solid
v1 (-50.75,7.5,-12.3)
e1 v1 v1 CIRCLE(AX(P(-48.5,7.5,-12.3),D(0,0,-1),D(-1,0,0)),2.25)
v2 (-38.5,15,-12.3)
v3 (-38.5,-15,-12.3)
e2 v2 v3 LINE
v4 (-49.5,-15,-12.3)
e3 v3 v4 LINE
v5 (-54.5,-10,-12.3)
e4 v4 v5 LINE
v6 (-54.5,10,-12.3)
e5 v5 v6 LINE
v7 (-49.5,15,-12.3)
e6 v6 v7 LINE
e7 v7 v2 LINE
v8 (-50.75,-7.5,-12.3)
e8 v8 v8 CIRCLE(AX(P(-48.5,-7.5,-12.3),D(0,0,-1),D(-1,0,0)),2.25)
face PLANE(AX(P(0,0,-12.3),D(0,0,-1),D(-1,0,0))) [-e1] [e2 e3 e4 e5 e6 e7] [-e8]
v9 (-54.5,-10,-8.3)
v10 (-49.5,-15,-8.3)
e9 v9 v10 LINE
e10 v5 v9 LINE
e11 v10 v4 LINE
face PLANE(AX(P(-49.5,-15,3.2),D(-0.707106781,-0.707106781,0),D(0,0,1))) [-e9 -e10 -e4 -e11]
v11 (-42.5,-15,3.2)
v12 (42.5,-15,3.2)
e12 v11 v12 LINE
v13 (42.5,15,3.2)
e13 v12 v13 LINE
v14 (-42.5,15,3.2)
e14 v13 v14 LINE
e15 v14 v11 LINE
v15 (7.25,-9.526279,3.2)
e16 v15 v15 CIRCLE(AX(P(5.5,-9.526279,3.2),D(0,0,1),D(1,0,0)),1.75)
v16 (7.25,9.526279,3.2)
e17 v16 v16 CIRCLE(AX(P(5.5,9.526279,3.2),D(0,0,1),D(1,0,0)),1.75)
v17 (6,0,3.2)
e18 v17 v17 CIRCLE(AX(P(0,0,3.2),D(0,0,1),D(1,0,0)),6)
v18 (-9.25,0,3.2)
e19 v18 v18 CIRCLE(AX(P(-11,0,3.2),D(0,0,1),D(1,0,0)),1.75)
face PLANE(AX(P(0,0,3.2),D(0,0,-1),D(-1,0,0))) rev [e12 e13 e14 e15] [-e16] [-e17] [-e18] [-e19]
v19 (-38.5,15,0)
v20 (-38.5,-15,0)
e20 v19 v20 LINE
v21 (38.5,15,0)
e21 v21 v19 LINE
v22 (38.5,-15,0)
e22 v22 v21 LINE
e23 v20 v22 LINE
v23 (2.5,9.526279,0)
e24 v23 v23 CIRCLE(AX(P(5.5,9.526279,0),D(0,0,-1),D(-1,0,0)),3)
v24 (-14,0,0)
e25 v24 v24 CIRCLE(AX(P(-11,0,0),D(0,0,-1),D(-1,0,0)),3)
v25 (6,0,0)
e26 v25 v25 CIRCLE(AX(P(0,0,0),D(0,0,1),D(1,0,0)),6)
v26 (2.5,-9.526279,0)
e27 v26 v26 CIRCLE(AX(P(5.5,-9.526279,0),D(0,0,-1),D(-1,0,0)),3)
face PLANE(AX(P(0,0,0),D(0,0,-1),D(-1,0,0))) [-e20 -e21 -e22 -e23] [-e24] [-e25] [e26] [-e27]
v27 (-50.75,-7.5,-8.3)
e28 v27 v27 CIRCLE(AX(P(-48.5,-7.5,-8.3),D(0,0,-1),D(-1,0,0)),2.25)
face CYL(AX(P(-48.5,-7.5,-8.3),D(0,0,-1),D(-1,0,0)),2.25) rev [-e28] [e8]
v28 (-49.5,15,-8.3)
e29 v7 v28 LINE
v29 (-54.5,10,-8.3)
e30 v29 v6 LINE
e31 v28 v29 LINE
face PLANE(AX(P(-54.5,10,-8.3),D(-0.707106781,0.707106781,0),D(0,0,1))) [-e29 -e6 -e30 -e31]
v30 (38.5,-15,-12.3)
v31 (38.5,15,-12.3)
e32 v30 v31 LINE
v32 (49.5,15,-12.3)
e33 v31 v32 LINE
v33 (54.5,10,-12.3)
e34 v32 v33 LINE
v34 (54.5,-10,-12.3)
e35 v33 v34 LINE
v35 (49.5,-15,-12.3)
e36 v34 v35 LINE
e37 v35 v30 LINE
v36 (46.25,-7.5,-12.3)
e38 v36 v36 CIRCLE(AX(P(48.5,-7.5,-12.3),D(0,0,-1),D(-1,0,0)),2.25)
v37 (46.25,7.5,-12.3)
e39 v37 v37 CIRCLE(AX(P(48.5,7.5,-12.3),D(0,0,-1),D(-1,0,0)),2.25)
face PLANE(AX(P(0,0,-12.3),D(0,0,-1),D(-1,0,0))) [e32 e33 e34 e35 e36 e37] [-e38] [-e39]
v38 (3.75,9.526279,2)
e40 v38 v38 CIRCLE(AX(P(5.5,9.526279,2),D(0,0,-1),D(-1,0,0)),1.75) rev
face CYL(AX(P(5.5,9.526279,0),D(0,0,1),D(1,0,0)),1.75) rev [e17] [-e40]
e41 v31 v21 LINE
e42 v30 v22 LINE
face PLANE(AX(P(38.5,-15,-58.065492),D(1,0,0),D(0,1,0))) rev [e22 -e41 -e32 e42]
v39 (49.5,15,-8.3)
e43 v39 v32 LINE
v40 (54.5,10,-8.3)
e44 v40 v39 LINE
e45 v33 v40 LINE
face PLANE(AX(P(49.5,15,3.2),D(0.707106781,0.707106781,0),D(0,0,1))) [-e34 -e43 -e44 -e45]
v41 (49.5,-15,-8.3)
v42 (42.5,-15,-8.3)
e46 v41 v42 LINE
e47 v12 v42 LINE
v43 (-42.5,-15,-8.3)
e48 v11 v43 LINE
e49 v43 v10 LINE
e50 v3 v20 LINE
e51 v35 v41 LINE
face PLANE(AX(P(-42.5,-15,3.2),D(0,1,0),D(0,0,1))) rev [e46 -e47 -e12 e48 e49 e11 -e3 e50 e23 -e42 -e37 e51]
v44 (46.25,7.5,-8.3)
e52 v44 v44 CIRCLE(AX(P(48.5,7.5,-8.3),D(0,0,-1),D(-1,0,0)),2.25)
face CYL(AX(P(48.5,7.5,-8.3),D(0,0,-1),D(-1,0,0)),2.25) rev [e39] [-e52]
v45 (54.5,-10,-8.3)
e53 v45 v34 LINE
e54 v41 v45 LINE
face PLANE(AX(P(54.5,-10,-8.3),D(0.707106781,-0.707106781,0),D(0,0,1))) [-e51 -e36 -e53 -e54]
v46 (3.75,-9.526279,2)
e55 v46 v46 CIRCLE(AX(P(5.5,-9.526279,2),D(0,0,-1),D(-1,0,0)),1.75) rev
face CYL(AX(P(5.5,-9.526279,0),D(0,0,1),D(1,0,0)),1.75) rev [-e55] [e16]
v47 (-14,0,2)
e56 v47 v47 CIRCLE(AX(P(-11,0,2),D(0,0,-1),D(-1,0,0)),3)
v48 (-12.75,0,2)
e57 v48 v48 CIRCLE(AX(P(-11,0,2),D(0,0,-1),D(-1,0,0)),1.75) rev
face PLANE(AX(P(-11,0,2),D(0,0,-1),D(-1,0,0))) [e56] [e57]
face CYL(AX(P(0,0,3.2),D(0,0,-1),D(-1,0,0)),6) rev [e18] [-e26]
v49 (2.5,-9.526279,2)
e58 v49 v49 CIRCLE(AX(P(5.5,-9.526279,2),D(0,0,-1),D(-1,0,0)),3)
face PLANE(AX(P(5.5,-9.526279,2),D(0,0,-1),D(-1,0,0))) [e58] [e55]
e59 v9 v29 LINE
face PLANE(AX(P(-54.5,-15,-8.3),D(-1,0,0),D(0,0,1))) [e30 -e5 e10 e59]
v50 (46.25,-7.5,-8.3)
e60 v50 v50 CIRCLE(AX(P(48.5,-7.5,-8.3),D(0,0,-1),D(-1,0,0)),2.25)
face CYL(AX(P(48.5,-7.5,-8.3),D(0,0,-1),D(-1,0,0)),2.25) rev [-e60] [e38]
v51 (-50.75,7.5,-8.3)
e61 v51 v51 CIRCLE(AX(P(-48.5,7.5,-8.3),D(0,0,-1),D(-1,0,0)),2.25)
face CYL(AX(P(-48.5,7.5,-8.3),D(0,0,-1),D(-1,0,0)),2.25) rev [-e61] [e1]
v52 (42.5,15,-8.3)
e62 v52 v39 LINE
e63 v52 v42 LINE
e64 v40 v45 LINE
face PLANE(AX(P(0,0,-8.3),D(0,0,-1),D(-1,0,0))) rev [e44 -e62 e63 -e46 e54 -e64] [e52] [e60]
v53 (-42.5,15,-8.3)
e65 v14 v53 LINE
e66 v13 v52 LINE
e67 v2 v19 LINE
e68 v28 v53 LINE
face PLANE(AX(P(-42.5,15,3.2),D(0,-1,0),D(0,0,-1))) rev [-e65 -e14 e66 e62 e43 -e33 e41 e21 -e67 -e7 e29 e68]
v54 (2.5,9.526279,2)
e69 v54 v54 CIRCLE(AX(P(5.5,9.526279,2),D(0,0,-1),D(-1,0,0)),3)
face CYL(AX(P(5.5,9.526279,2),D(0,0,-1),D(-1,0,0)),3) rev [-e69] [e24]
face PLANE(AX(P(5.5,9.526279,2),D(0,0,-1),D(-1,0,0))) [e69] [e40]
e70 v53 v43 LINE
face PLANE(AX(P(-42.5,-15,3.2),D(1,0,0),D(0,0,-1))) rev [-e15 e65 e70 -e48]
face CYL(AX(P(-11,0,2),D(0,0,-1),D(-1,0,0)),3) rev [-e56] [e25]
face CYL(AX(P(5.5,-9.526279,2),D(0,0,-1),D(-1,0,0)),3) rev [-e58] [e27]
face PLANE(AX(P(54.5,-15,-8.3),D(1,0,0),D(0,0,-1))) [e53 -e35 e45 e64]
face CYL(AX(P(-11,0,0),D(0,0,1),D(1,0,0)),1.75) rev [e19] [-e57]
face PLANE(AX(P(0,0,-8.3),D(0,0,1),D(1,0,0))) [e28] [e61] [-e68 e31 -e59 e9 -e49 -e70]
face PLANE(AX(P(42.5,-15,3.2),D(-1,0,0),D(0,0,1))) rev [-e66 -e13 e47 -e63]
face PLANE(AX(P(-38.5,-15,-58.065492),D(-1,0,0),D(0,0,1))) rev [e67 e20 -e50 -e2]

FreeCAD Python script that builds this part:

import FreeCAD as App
import Part
import Sketcher


def edges_at(feature, points):
    """Names of the edges that pass closest to the given points."""
    edges = feature.Shape.Edges
    near = lambda p: min(range(len(edges)), key=lambda i: edges[i].distToShape(Part.Vertex(*p))[0])
    return sorted({f"Edge{near(p) + 1}" for p in points})

doc = App.newDocument("Part")
body = doc.addObject("PartDesign::Body", "Body")

sketch1 = body.newObject("Sketcher::SketchObject", "Sketch")
sketch1.AttachmentSupport = (doc.getObject("XY_Plane"), [""])
sketch1.MapMode = "FlatFace"
sketch1.addGeometry([
    Part.LineSegment(App.Vector(-42, 15, 0), App.Vector(-42, -15, 0)),
    Part.LineSegment(App.Vector(-42, -15, 0), App.Vector(42, -15, 0)),
    Part.LineSegment(App.Vector(42, -15, 0), App.Vector(42, 15, 0)),
    Part.LineSegment(App.Vector(42, 15, 0), App.Vector(-42, 15, 0)),
    Part.Circle(App.Vector(0, 0, 0), App.Vector(0, 0, 1), 6),
], False)
sketch1.addConstraint([
    Sketcher.Constraint("Coincident", 0, 2, 1, 1),
    Sketcher.Constraint("Coincident", 1, 2, 2, 1),
    Sketcher.Constraint("Coincident", 2, 2, 3, 1),
    Sketcher.Constraint("Coincident", 3, 2, 0, 1),
    Sketcher.Constraint("Vertical", 0),
    Sketcher.Constraint("Horizontal", 1),
    Sketcher.Constraint("Vertical", 2),
    Sketcher.Constraint("Horizontal", 3),
    Sketcher.Constraint("Coincident", 4, 3, -1, 1),
    Sketcher.Constraint("Symmetric", 0, 2, 2, 2, -1, 1),
    Sketcher.Constraint("Diameter", 4, 12.0),
    Sketcher.Constraint("DistanceX", 1, 1, 1, 2, 85.0),
    Sketcher.Constraint("DistanceY", 0, 2, 0, 1, 30.0),
])
pad1 = body.newObject("PartDesign::Pad", "Pad")
pad1.Profile = sketch1
pad1.Length = 3.2

sketch2 = body.newObject("Sketcher::SketchObject", "Sketch001")
sketch2.AttachmentSupport = (doc.getObject("XY_Plane"), [""])
sketch2.MapMode = "FlatFace"
sketch2.AttachmentOffset = App.Placement(App.Vector(0, 0, 3.2), App.Rotation())
sketch2.addGeometry([
    Part.Circle(App.Vector(5.5, 9.5, 0), App.Vector(0, 0, 1), 1.8),
    Part.Circle(App.Vector(-11, 0, 0), App.Vector(0, 0, 1), 1.8),
    Part.Circle(App.Vector(5.5, -9.5, 0), App.Vector(0, 0, 1), 1.8),
], False)
sketch2.addConstraint([
    Sketcher.Constraint("Equal", 0, 1),
    Sketcher.Constraint("Equal", 1, 2),
    Sketcher.Constraint("Symmetric", 0, 3, 2, 3, -1),
    Sketcher.Constraint("PointOnObject", 1, 3, -1),
    Sketcher.Constraint("Diameter", 0, 3.5),
    Sketcher.Constraint("DistanceX", 1, 3, -1, 1, 11.0),
    Sketcher.Constraint("DistanceX", -1, 1, 0, 3, 5.5),
    Sketcher.Constraint("DistanceY", -1, 1, 0, 3, 9.526279),
])
pocket1 = body.newObject("PartDesign::Pocket", "Pocket")
pocket1.Profile = sketch2
pocket1.Type = "ThroughAll"

sketch3 = body.newObject("Sketcher::SketchObject", "Sketch002")
sketch3.AttachmentSupport = (doc.getObject("XY_Plane"), [""])
sketch3.MapMode = "FlatFace"
sketch3.addGeometry([
    Part.Circle(App.Vector(5.5, 9.5, 0), App.Vector(0, 0, 1), 3),
    Part.Circle(App.Vector(-11, 0, 0), App.Vector(0, 0, 1), 3),
    Part.Circle(App.Vector(5.5, -9.5, 0), App.Vector(0, 0, 1), 3),
], False)
sketch3.addConstraint([
    Sketcher.Constraint("Equal", 0, 1),
    Sketcher.Constraint("Equal", 1, 2),
    Sketcher.Constraint("Symmetric", 0, 3, 2, 3, -1),
    Sketcher.Constraint("PointOnObject", 1, 3, -1),
    Sketcher.Constraint("Diameter", 0, 6.0),
    Sketcher.Constraint("DistanceX", 1, 3, -1, 1, 11.0),
    Sketcher.Constraint("DistanceX", -1, 1, 0, 3, 5.5),
    Sketcher.Constraint("DistanceY", -1, 1, 0, 3, 9.526279),
])
pocket2 = body.newObject("PartDesign::Pocket", "Pocket001")
pocket2.Profile = sketch3
pocket2.Length = 2
pocket2.Reversed = True

sketch4 = body.newObject("Sketcher::SketchObject", "Sketch003")
sketch4.AttachmentSupport = (doc.getObject("XY_Plane"), [""])
sketch4.MapMode = "FlatFace"
sketch4.addGeometry([
    Part.LineSegment(App.Vector(-38.5, 15, 0), App.Vector(-38.5, -15, 0)),
    Part.LineSegment(App.Vector(-38.5, -15, 0), App.Vector(-42.5, -15, 0)),
    Part.LineSegment(App.Vector(-42.5, -15, 0), App.Vector(-42.5, 15, 0)),
    Part.LineSegment(App.Vector(-42.5, 15, 0), App.Vector(-38.5, 15, 0)),
    Part.LineSegment(App.Vector(42.5, 15, 0), App.Vector(42.5, -15, 0)),
    Part.LineSegment(App.Vector(42.5, -15, 0), App.Vector(38.5, -15, 0)),
    Part.LineSegment(App.Vector(38.5, -15, 0), App.Vector(38.5, 15, 0)),
    Part.LineSegment(App.Vector(38.5, 15, 0), App.Vector(42.5, 15, 0)),
], False)
sketch4.addConstraint([
    Sketcher.Constraint("Coincident", 0, 2, 1, 1),
    Sketcher.Constraint("Coincident", 1, 2, 2, 1),
    Sketcher.Constraint("Coincident", 2, 2, 3, 1),
    Sketcher.Constraint("Coincident", 3, 2, 0, 1),
    Sketcher.Constraint("Coincident", 4, 2, 5, 1),
    Sketcher.Constraint("Coincident", 5, 2, 6, 1),
    Sketcher.Constraint("Coincident", 6, 2, 7, 1),
    Sketcher.Constraint("Coincident", 7, 2, 4, 1),
    Sketcher.Constraint("Vertical", 0),
    Sketcher.Constraint("Horizontal", 1),
    Sketcher.Constraint("Vertical", 2),
    Sketcher.Constraint("Horizontal", 3),
    Sketcher.Constraint("Vertical", 4),
    Sketcher.Constraint("Horizontal", 5),
    Sketcher.Constraint("Vertical", 6),
    Sketcher.Constraint("Horizontal", 7),
    Sketcher.Constraint("Symmetric", 2, 2, 4, 2, -1, 1),
    Sketcher.Constraint("Symmetric", 0, 2, 6, 2, -1, 1),
    Sketcher.Constraint("Horizontal", 1, 2, 4, 2),
    Sketcher.Constraint("DistanceX", 1, 2, 1, 1, 4.0),
    Sketcher.Constraint("DistanceY", 0, 2, 0, 1, 30.0),
    Sketcher.Constraint("DistanceX", 0, 2, 4, 2, 81.0),
])
pad2 = body.newObject("PartDesign::Pad", "Pad001")
pad2.Profile = sketch4
pad2.Length = 12.3
pad2.Reversed = True

sketch5 = body.newObject("Sketcher::SketchObject", "Sketch004")
sketch5.AttachmentSupport = (doc.getObject("XY_Plane"), [""])
sketch5.MapMode = "FlatFace"
sketch5.AttachmentOffset = App.Placement(App.Vector(0, 0, -12.3), App.Rotation())
sketch5.addGeometry([
    Part.LineSegment(App.Vector(-38.5, 15, 0), App.Vector(-38.5, -15, 0)),
    Part.LineSegment(App.Vector(-38.5, -15, 0), App.Vector(-54.5, -15, 0)),
    Part.LineSegment(App.Vector(-54.5, -15, 0), App.Vector(-54.5, 15, 0)),
    Part.LineSegment(App.Vector(-54.5, 15, 0), App.Vector(-38.5, 15, 0)),
    Part.Circle(App.Vector(-48.5, -7.5, 0), App.Vector(0, 0, 1), 2.2),
    Part.Circle(App.Vector(-48.5, 7.5, 0), App.Vector(0, 0, 1), 2.2),
    Part.LineSegment(App.Vector(54.5, 15, 0), App.Vector(54.5, -15, 0)),
    Part.LineSegment(App.Vector(54.5, -15, 0), App.Vector(38.5, -15, 0)),
    Part.LineSegment(App.Vector(38.5, -15, 0), App.Vector(38.5, 15, 0)),
    Part.LineSegment(App.Vector(38.5, 15, 0), App.Vector(54.5, 15, 0)),
    Part.Circle(App.Vector(48.5, -7.5, 0), App.Vector(0, 0, 1), 2.2),
    Part.Circle(App.Vector(48.5, 7.5, 0), App.Vector(0, 0, 1), 2.2),
], False)
sketch5.addConstraint([
    Sketcher.Constraint("Coincident", 0, 2, 1, 1),
    Sketcher.Constraint("Coincident", 1, 2, 2, 1),
    Sketcher.Constraint("Coincident", 2, 2, 3, 1),
    Sketcher.Constraint("Coincident", 3, 2, 0, 1),
    Sketcher.Constraint("Coincident", 6, 2, 7, 1),
    Sketcher.Constraint("Coincident", 7, 2, 8, 1),
    Sketcher.Constraint("Coincident", 8, 2, 9, 1),
    Sketcher.Constraint("Coincident", 9, 2, 6, 1),
    Sketcher.Constraint("Vertical", 0),
    Sketcher.Constraint("Horizontal", 1),
    Sketcher.Constraint("Vertical", 2),
    Sketcher.Constraint("Horizontal", 3),
    Sketcher.Constraint("Vertical", 6),
    Sketcher.Constraint("Horizontal", 7),
    Sketcher.Constraint("Vertical", 8),
    Sketcher.Constraint("Horizontal", 9),
    Sketcher.Constraint("Equal", 4, 5),
    Sketcher.Constraint("Equal", 5, 10),
    Sketcher.Constraint("Equal", 10, 11),
    Sketcher.Constraint("Symmetric", 5, 3, 10, 3, -1, 1),
    Sketcher.Constraint("Symmetric", 4, 3, 11, 3, -1, 1),
    Sketcher.Constraint("Symmetric", 2, 2, 6, 2, -1, 1),
    Sketcher.Constraint("Symmetric", 0, 2, 8, 2, -1, 1),
    Sketcher.Constraint("Symmetric", 4, 3, 10, 3, -2),
    Sketcher.Constraint("Horizontal", 1, 2, 6, 2),
    Sketcher.Constraint("Diameter", 4, 4.5),
    Sketcher.Constraint("DistanceX", 1, 2, 1, 1, 16.0),
    Sketcher.Constraint("DistanceY", 0, 2, 0, 1, 30.0),
    Sketcher.Constraint("DistanceY", 4, 3, 5, 3, 15.0),
    Sketcher.Constraint("DistanceX", 4, 3, 10, 3, 97.0),
    Sketcher.Constraint("DistanceX", 4, 3, 0, 2, 10.0),
])
pad3 = body.newObject("PartDesign::Pad", "Pad002")
pad3.Profile = sketch5
pad3.Length = 4
doc.recompute()

chamfer = body.newObject("PartDesign::Chamfer", "Chamfer")
chamfer.Base = (pad3, edges_at(pad3, [
    (54.5, 15, -10.3),
    (54.5, -15, -10.3),
    (-54.5, -15, -10.3),
    (-54.5, 15, -10.3),
]))
chamfer.Size = 5

doc.recompute()
